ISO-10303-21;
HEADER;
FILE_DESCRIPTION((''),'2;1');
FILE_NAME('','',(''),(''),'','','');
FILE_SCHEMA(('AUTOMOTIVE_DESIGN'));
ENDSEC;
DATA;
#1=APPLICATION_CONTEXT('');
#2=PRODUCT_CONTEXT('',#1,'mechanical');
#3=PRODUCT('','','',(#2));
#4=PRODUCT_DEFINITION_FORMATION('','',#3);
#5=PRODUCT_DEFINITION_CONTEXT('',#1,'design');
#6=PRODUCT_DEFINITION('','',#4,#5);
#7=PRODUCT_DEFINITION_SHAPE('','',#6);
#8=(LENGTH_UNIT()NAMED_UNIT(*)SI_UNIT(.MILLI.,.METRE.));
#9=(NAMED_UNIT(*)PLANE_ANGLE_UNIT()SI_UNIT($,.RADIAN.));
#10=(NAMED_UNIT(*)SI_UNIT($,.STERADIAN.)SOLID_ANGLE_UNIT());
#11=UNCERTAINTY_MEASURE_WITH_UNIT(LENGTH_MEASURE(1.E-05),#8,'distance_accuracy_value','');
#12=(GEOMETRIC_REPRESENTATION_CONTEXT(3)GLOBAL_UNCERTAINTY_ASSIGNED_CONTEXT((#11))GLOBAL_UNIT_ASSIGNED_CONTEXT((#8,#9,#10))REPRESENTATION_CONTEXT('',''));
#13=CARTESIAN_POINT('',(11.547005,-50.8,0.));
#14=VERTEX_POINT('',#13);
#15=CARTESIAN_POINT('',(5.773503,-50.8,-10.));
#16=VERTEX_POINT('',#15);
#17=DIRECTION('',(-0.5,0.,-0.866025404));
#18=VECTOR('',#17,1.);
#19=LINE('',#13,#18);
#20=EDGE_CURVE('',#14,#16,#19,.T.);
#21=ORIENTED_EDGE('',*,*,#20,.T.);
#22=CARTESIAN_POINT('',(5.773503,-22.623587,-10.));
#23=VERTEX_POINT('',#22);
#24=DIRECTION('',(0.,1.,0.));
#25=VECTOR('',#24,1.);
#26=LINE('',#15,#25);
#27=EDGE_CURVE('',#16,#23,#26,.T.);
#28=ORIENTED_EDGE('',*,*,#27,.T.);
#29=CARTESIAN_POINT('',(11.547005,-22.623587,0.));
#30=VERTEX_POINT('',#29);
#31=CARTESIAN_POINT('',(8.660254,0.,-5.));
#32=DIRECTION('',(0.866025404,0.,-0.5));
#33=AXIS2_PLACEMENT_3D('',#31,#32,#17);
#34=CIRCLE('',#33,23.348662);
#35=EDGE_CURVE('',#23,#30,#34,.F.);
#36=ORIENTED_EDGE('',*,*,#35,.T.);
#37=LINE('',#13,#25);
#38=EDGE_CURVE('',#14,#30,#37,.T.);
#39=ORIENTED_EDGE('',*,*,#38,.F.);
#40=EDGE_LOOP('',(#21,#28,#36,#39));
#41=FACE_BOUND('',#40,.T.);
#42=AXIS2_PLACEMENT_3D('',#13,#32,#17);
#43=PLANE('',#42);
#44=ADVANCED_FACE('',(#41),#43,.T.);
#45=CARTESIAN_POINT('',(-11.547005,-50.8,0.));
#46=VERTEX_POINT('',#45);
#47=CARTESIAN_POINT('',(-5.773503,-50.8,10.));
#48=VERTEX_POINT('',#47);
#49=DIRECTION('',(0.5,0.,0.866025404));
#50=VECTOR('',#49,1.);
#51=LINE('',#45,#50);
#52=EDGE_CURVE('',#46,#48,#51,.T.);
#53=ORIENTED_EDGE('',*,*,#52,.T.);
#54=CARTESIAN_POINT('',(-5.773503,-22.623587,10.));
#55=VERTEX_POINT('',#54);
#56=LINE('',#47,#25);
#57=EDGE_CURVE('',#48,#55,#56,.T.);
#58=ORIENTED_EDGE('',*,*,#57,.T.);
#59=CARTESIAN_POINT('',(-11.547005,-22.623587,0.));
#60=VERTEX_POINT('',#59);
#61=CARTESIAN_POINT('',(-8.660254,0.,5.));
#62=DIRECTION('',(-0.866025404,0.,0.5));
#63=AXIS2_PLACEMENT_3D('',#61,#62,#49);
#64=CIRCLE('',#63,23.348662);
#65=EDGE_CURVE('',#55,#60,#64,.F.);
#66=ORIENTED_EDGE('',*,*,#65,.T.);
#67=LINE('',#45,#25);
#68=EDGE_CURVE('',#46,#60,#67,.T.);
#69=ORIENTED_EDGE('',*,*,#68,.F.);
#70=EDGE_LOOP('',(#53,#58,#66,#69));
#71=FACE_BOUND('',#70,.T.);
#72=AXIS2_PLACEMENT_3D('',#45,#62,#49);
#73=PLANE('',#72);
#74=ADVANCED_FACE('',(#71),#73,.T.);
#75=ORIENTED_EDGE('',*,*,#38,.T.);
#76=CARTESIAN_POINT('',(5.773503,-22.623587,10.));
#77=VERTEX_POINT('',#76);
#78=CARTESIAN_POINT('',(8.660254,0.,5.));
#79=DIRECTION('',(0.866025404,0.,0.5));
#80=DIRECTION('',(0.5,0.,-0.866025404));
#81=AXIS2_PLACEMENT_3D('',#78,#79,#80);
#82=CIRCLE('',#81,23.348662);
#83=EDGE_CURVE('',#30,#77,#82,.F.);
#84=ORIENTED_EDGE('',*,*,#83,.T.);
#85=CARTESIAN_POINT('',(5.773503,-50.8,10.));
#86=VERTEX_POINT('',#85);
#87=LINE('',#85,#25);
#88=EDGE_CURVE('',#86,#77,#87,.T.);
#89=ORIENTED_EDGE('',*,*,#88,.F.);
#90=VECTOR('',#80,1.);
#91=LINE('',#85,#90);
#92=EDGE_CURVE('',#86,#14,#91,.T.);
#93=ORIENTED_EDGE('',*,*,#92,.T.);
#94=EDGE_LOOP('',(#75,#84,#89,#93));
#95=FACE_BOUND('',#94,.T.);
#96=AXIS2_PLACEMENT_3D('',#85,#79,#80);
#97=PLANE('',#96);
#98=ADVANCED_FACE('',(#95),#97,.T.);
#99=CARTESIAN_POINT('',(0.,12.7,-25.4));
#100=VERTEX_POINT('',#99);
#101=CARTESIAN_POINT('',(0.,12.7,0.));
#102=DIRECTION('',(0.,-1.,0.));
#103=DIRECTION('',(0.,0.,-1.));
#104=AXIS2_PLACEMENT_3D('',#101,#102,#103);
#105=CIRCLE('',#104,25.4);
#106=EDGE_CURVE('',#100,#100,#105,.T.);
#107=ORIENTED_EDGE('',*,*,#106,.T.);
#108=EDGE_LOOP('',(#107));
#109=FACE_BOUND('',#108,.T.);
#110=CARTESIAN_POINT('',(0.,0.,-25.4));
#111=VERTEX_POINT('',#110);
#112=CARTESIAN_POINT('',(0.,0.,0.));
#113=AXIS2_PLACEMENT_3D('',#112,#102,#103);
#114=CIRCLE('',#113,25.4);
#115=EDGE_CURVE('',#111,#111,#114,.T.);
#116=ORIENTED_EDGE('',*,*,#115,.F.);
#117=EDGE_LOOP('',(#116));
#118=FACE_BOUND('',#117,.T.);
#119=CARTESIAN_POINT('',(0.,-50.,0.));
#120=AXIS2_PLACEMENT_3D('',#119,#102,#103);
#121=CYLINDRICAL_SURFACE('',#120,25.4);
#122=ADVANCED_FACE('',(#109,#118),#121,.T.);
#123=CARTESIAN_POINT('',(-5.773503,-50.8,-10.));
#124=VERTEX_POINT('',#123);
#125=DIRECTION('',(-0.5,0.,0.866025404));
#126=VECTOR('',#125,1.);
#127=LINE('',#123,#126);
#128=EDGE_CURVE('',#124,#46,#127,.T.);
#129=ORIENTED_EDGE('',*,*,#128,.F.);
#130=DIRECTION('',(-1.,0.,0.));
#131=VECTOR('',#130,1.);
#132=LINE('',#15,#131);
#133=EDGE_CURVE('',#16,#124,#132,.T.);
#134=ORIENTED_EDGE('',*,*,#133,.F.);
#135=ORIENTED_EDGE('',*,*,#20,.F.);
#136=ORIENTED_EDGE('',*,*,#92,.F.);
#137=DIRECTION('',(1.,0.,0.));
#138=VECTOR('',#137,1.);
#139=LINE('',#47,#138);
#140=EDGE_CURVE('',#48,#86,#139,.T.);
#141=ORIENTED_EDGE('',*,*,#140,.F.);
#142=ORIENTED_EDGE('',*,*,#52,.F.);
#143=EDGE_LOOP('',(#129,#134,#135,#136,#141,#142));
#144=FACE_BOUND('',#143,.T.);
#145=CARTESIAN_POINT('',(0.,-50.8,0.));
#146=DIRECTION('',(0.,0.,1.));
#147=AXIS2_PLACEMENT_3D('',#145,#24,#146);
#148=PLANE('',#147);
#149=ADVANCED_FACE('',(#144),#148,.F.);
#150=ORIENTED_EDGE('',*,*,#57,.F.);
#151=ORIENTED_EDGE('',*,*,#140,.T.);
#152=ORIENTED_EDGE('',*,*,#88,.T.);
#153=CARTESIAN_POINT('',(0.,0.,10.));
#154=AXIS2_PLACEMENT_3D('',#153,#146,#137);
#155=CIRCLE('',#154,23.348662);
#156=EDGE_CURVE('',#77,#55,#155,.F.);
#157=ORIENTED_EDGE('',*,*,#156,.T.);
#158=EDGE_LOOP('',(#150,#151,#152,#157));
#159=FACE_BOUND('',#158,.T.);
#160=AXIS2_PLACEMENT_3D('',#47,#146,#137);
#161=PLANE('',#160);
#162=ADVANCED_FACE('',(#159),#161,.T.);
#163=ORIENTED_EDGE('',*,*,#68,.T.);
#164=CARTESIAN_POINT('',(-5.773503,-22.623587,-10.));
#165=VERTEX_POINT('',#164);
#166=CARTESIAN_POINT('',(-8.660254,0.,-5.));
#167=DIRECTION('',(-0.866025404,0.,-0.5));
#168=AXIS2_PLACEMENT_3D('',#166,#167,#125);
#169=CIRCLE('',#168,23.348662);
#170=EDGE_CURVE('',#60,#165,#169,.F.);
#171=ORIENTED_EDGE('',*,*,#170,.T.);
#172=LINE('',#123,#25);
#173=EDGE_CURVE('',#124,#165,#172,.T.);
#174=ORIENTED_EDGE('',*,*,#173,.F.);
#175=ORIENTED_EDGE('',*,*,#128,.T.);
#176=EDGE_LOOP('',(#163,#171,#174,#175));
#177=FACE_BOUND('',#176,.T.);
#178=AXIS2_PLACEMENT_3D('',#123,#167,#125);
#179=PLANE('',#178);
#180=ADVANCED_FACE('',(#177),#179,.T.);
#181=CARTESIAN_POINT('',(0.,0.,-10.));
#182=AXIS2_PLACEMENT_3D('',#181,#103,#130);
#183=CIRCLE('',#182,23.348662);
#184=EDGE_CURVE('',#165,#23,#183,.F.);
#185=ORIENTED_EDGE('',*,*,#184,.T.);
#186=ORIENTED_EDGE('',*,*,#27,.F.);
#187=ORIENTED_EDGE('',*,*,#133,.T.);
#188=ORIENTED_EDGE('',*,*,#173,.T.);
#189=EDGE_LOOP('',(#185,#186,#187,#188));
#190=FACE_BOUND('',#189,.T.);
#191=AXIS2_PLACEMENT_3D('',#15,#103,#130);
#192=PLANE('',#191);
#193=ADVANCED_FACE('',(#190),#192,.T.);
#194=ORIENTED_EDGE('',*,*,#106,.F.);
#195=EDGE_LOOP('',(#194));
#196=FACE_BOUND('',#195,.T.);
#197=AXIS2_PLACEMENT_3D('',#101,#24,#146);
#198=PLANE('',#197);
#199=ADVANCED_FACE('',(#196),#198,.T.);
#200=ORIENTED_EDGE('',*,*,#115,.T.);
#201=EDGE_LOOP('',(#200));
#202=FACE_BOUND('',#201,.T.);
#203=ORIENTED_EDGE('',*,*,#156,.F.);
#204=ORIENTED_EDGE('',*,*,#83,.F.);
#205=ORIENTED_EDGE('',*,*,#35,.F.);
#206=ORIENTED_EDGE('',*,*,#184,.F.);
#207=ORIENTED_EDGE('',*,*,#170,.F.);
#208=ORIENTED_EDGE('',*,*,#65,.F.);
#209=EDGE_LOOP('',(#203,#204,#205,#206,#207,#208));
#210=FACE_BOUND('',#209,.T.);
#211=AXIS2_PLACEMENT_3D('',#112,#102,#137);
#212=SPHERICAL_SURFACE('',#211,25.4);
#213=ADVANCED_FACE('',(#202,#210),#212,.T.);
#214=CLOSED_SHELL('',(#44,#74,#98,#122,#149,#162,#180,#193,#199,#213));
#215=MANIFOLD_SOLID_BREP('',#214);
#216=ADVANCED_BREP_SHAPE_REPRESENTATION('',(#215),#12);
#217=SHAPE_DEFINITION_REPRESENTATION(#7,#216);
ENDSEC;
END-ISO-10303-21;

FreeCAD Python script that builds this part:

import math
import FreeCAD as App
import Part
import Sketcher

V = App.Vector
Q = App.Units.Quantity

doc = App.newDocument("Part")
params = doc.addObject("Spreadsheet::Sheet", "Params")
for row, (alias, value) in enumerate([
    ("sketch1_radius", "1 in"),
    ("sketch1_height", "1.5 in"),
    ("revolution_angle", "360 deg"),
    ("pad1_length", "2 in"),
], start=1):
    params.set(f"A{row}", alias)
    params.set(f"B{row}", "=" + value)
    params.setAlias(f"B{row}", alias)

body = doc.addObject("PartDesign::Body", "Body")

sketch1 = body.newObject("Sketcher::SketchObject", "Sketch")
sketch1.AttachmentSupport = (doc.getObject("XY_Plane"), [""])
sketch1.MapMode = "FlatFace"
sketch1.addGeometry(Part.LineSegment(V(0, 12.7, 0), V(0, -25.4, 0)), False)
sketch1.addGeometry(Part.ArcOfCircle(Part.Circle(V(0, 0, 0), V(0, 0, 1), 25.4), math.radians(-90), math.radians(0)), False)
sketch1.addGeometry(Part.LineSegment(V(25.4, 0, 0), V(25.4, 12.7, 0)), False)
sketch1.addGeometry(Part.LineSegment(V(25.4, 12.7, 0), V(0, 12.7, 0)), False)
sketch1.addConstraint(Sketcher.Constraint("Coincident", 0, 2, 1, 1))
sketch1.addConstraint(Sketcher.Constraint("Tangent", 1, 2, 2, 1))
sketch1.addConstraint(Sketcher.Constraint("Coincident", 2, 2, 3, 1))
sketch1.addConstraint(Sketcher.Constraint("Coincident", 3, 2, 0, 1))
sketch1.addConstraint(Sketcher.Constraint("Vertical", 0))
sketch1.addConstraint(Sketcher.Constraint("Vertical", 2))
sketch1.addConstraint(Sketcher.Constraint("Horizontal", 3))
sketch1.addConstraint(Sketcher.Constraint("Coincident", 1, 3, -1, 1))
sketch1.addConstraint(Sketcher.Constraint("PointOnObject", 0, 2, -2))
sketch1.addConstraint(Sketcher.Constraint("Radius", 1, Q("1 in")))
sketch1.addConstraint(Sketcher.Constraint("DistanceY", 0, 2, 0, 1, Q("1.5 in")))
sketch1.setExpression("Constraints[9]", "Params.sketch1_radius")
sketch1.setExpression("Constraints[10]", "Params.sketch1_height")
revolution = body.newObject("PartDesign::Revolution", "Revolution")
revolution.Profile = sketch1
revolution.ReferenceAxis = (sketch1, ["V_Axis"])
revolution.setExpression("Angle", "Params.revolution_angle")

sketch2 = body.newObject("Sketcher::SketchObject", "Sketch001")
sketch2.AttachmentSupport = (doc.getObject("XZ_Plane"), [""])
sketch2.MapMode = "FlatFace"
sketch2.addGeometry(Part.LineSegment(V(-5.773503, 10, 0), V(5.773503, 10, 0)), False)
sketch2.addGeometry(Part.LineSegment(V(5.773503, 10, 0), V(11.547005, 0, 0)), False)
sketch2.addGeometry(Part.LineSegment(V(11.547005, 0, 0), V(5.773503, -10, 0)), False)
sketch2.addGeometry(Part.LineSegment(V(5.773503, -10, 0), V(-5.773503, -10, 0)), False)
sketch2.addGeometry(Part.LineSegment(V(-5.773503, -10, 0), V(-11.547005, 0, 0)), False)
sketch2.addGeometry(Part.LineSegment(V(-11.547005, 0, 0), V(-5.773503, 10, 0)), False)
sketch2.addConstraint(Sketcher.Constraint("Coincident", 0, 2, 1, 1))
sketch2.addConstraint(Sketcher.Constraint("Coincident", 1, 2, 2, 1))
sketch2.addConstraint(Sketcher.Constraint("Coincident", 2, 2, 3, 1))
sketch2.addConstraint(Sketcher.Constraint("Coincident", 3, 2, 4, 1))
sketch2.addConstraint(Sketcher.Constraint("Coincident", 4, 2, 5, 1))
sketch2.addConstraint(Sketcher.Constraint("Coincident", 5, 2, 0, 1))
sketch2.addConstraint(Sketcher.Constraint("Horizontal", 0))
sketch2.addConstraint(Sketcher.Constraint("Horizontal", 3))
sketch2.addConstraint(Sketcher.Constraint("Symmetric", 0, 2, 3, 2, -1, 1))
sketch2.addConstraint(Sketcher.Constraint("Symmetric", 1, 2, 4, 2, -1, 1))
sketch2.addConstraint(Sketcher.Constraint("PointOnObject", 1, 2, -1))
sketch2.addConstraint(Sketcher.Constraint("Parallel", 2, 5))
sketch2.addConstraint(Sketcher.Constraint("Vertical", 0, 2, 2, 2))
sketch2.addConstraint(Sketcher.Constraint("Angle", 1, Q("-60 deg")))
sketch2.addConstraint(Sketcher.Constraint("DistanceY", -1, 1, 0, 2, 10.0))
sketch2.addConstraint(Sketcher.Constraint("DistanceX", 0, 1, 0, 2, 11.547005))
pad1 = body.newObject("PartDesign::Pad", "Pad")
pad1.Profile = sketch2
pad1.setExpression("Length", "Params.pad1_length")

doc.recompute()
